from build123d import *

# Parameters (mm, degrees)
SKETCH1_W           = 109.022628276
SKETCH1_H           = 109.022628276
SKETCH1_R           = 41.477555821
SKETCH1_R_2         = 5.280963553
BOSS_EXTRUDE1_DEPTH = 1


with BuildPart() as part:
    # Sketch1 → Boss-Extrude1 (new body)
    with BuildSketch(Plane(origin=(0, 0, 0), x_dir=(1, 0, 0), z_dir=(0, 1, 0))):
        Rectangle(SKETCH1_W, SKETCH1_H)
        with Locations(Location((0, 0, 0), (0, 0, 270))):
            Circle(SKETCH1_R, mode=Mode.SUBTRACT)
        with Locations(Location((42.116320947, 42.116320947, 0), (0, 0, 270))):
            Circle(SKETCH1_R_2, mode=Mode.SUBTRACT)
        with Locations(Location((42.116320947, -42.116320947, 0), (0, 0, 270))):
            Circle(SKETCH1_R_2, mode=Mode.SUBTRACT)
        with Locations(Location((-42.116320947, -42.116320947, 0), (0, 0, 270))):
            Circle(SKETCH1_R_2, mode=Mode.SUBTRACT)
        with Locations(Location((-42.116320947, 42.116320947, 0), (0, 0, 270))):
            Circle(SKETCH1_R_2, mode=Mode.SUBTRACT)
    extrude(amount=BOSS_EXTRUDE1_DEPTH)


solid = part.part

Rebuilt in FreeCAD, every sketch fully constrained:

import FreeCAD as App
import Part
import Sketcher
Q = App.Units.Quantity

doc = App.newDocument("Part")
params = doc.addObject("Spreadsheet::Sheet", "Params")
for row, (alias, value) in enumerate([
    ("pad1_length", "1 mm"),
], start=1):
    params.set(f"A{row}", alias)
    params.set(f"B{row}", "=" + value)
    params.setAlias(f"B{row}", alias)

body = doc.addObject("PartDesign::Body", "Body")

# Sketch on XZ plane
sketch1 = body.newObject("Sketcher::SketchObject", "Sketch")
sketch1.AttachmentSupport = (doc.getObject("XZ_Plane"), [""])
sketch1.MapMode = "FlatFace"
sketch1.addGeometry(Part.LineSegment(App.Vector(-55, -55, 0), App.Vector(-55, 55, 0)), False)
sketch1.addGeometry(Part.LineSegment(App.Vector(-55, 55, 0), App.Vector(55, 55, 0)), False)
sketch1.addGeometry(Part.LineSegment(App.Vector(55, 55, 0), App.Vector(55, -55, 0)), False)
sketch1.addGeometry(Part.LineSegment(App.Vector(55, -55, 0), App.Vector(-55, -55, 0)), False)
sketch1.addGeometry(Part.Circle(App.Vector(-42, 42, 0), App.Vector(0, 0, 1), 5), False)
sketch1.addGeometry(Part.Circle(App.Vector(42, 42, 0), App.Vector(0, 0, 1), 5), False)
sketch1.addGeometry(Part.Circle(App.Vector(-42, -42, 0), App.Vector(0, 0, 1), 5), False)
sketch1.addGeometry(Part.Circle(App.Vector(0, 0, 0), App.Vector(0, 0, 1), 41), False)
sketch1.addGeometry(Part.Circle(App.Vector(42, -42, 0), App.Vector(0, 0, 1), 5), False)
sketch1.addConstraint(Sketcher.Constraint("Coincident", 0, 2, 1, 1))
sketch1.addConstraint(Sketcher.Constraint("Coincident", 1, 2, 2, 1))
sketch1.addConstraint(Sketcher.Constraint("Coincident", 2, 2, 3, 1))
sketch1.addConstraint(Sketcher.Constraint("Coincident", 3, 2, 0, 1))
sketch1.addConstraint(Sketcher.Constraint("Vertical", 0))
sketch1.addConstraint(Sketcher.Constraint("Horizontal", 1))
sketch1.addConstraint(Sketcher.Constraint("Vertical", 2))
sketch1.addConstraint(Sketcher.Constraint("Horizontal", 3))
sketch1.addConstraint(Sketcher.Constraint("Coincident", 7, 3, -1, 1))
sketch1.addConstraint(Sketcher.Constraint("Equal", 4, 5))
sketch1.addConstraint(Sketcher.Constraint("Equal", 5, 6))
sketch1.addConstraint(Sketcher.Constraint("Equal", 6, 8))
sketch1.addConstraint(Sketcher.Constraint("Symmetric", 5, 3, 6, 3, -1, 1))
sketch1.addConstraint(Sketcher.Constraint("Symmetric", 4, 3, 8, 3, -1, 1))
sketch1.addConstraint(Sketcher.Constraint("Symmetric", 0, 2, 2, 2, -1, 1))
sketch1.addConstraint(Sketcher.Constraint("Symmetric", 4, 3, 5, 3, -2))
sketch1.addConstraint(Sketcher.Constraint("Equal", 3, 0))
sketch1.addConstraint(Sketcher.Constraint("Diameter", 7, Q("82.955112 mm")))
sketch1.addConstraint(Sketcher.Constraint("Diameter", 4, Q("10.561927 mm")))
sketch1.addConstraint(Sketcher.Constraint("DistanceX", 1, 1, 1, 2, Q("109.022628 mm")))
sketch1.addConstraint(Sketcher.Constraint("DistanceX", 4, 3, -1, 1, Q("42.116321 mm")))
sketch1.addConstraint(Sketcher.Constraint("DistanceY", -1, 1, 4, 3, Q("42.116321 mm")))
pad1 = body.newObject("PartDesign::Pad", "Pad")
pad1.Profile = sketch1
pad1.setExpression("Length", "Params.pad1_length")
pad1.Reversed = True

doc.recompute()
